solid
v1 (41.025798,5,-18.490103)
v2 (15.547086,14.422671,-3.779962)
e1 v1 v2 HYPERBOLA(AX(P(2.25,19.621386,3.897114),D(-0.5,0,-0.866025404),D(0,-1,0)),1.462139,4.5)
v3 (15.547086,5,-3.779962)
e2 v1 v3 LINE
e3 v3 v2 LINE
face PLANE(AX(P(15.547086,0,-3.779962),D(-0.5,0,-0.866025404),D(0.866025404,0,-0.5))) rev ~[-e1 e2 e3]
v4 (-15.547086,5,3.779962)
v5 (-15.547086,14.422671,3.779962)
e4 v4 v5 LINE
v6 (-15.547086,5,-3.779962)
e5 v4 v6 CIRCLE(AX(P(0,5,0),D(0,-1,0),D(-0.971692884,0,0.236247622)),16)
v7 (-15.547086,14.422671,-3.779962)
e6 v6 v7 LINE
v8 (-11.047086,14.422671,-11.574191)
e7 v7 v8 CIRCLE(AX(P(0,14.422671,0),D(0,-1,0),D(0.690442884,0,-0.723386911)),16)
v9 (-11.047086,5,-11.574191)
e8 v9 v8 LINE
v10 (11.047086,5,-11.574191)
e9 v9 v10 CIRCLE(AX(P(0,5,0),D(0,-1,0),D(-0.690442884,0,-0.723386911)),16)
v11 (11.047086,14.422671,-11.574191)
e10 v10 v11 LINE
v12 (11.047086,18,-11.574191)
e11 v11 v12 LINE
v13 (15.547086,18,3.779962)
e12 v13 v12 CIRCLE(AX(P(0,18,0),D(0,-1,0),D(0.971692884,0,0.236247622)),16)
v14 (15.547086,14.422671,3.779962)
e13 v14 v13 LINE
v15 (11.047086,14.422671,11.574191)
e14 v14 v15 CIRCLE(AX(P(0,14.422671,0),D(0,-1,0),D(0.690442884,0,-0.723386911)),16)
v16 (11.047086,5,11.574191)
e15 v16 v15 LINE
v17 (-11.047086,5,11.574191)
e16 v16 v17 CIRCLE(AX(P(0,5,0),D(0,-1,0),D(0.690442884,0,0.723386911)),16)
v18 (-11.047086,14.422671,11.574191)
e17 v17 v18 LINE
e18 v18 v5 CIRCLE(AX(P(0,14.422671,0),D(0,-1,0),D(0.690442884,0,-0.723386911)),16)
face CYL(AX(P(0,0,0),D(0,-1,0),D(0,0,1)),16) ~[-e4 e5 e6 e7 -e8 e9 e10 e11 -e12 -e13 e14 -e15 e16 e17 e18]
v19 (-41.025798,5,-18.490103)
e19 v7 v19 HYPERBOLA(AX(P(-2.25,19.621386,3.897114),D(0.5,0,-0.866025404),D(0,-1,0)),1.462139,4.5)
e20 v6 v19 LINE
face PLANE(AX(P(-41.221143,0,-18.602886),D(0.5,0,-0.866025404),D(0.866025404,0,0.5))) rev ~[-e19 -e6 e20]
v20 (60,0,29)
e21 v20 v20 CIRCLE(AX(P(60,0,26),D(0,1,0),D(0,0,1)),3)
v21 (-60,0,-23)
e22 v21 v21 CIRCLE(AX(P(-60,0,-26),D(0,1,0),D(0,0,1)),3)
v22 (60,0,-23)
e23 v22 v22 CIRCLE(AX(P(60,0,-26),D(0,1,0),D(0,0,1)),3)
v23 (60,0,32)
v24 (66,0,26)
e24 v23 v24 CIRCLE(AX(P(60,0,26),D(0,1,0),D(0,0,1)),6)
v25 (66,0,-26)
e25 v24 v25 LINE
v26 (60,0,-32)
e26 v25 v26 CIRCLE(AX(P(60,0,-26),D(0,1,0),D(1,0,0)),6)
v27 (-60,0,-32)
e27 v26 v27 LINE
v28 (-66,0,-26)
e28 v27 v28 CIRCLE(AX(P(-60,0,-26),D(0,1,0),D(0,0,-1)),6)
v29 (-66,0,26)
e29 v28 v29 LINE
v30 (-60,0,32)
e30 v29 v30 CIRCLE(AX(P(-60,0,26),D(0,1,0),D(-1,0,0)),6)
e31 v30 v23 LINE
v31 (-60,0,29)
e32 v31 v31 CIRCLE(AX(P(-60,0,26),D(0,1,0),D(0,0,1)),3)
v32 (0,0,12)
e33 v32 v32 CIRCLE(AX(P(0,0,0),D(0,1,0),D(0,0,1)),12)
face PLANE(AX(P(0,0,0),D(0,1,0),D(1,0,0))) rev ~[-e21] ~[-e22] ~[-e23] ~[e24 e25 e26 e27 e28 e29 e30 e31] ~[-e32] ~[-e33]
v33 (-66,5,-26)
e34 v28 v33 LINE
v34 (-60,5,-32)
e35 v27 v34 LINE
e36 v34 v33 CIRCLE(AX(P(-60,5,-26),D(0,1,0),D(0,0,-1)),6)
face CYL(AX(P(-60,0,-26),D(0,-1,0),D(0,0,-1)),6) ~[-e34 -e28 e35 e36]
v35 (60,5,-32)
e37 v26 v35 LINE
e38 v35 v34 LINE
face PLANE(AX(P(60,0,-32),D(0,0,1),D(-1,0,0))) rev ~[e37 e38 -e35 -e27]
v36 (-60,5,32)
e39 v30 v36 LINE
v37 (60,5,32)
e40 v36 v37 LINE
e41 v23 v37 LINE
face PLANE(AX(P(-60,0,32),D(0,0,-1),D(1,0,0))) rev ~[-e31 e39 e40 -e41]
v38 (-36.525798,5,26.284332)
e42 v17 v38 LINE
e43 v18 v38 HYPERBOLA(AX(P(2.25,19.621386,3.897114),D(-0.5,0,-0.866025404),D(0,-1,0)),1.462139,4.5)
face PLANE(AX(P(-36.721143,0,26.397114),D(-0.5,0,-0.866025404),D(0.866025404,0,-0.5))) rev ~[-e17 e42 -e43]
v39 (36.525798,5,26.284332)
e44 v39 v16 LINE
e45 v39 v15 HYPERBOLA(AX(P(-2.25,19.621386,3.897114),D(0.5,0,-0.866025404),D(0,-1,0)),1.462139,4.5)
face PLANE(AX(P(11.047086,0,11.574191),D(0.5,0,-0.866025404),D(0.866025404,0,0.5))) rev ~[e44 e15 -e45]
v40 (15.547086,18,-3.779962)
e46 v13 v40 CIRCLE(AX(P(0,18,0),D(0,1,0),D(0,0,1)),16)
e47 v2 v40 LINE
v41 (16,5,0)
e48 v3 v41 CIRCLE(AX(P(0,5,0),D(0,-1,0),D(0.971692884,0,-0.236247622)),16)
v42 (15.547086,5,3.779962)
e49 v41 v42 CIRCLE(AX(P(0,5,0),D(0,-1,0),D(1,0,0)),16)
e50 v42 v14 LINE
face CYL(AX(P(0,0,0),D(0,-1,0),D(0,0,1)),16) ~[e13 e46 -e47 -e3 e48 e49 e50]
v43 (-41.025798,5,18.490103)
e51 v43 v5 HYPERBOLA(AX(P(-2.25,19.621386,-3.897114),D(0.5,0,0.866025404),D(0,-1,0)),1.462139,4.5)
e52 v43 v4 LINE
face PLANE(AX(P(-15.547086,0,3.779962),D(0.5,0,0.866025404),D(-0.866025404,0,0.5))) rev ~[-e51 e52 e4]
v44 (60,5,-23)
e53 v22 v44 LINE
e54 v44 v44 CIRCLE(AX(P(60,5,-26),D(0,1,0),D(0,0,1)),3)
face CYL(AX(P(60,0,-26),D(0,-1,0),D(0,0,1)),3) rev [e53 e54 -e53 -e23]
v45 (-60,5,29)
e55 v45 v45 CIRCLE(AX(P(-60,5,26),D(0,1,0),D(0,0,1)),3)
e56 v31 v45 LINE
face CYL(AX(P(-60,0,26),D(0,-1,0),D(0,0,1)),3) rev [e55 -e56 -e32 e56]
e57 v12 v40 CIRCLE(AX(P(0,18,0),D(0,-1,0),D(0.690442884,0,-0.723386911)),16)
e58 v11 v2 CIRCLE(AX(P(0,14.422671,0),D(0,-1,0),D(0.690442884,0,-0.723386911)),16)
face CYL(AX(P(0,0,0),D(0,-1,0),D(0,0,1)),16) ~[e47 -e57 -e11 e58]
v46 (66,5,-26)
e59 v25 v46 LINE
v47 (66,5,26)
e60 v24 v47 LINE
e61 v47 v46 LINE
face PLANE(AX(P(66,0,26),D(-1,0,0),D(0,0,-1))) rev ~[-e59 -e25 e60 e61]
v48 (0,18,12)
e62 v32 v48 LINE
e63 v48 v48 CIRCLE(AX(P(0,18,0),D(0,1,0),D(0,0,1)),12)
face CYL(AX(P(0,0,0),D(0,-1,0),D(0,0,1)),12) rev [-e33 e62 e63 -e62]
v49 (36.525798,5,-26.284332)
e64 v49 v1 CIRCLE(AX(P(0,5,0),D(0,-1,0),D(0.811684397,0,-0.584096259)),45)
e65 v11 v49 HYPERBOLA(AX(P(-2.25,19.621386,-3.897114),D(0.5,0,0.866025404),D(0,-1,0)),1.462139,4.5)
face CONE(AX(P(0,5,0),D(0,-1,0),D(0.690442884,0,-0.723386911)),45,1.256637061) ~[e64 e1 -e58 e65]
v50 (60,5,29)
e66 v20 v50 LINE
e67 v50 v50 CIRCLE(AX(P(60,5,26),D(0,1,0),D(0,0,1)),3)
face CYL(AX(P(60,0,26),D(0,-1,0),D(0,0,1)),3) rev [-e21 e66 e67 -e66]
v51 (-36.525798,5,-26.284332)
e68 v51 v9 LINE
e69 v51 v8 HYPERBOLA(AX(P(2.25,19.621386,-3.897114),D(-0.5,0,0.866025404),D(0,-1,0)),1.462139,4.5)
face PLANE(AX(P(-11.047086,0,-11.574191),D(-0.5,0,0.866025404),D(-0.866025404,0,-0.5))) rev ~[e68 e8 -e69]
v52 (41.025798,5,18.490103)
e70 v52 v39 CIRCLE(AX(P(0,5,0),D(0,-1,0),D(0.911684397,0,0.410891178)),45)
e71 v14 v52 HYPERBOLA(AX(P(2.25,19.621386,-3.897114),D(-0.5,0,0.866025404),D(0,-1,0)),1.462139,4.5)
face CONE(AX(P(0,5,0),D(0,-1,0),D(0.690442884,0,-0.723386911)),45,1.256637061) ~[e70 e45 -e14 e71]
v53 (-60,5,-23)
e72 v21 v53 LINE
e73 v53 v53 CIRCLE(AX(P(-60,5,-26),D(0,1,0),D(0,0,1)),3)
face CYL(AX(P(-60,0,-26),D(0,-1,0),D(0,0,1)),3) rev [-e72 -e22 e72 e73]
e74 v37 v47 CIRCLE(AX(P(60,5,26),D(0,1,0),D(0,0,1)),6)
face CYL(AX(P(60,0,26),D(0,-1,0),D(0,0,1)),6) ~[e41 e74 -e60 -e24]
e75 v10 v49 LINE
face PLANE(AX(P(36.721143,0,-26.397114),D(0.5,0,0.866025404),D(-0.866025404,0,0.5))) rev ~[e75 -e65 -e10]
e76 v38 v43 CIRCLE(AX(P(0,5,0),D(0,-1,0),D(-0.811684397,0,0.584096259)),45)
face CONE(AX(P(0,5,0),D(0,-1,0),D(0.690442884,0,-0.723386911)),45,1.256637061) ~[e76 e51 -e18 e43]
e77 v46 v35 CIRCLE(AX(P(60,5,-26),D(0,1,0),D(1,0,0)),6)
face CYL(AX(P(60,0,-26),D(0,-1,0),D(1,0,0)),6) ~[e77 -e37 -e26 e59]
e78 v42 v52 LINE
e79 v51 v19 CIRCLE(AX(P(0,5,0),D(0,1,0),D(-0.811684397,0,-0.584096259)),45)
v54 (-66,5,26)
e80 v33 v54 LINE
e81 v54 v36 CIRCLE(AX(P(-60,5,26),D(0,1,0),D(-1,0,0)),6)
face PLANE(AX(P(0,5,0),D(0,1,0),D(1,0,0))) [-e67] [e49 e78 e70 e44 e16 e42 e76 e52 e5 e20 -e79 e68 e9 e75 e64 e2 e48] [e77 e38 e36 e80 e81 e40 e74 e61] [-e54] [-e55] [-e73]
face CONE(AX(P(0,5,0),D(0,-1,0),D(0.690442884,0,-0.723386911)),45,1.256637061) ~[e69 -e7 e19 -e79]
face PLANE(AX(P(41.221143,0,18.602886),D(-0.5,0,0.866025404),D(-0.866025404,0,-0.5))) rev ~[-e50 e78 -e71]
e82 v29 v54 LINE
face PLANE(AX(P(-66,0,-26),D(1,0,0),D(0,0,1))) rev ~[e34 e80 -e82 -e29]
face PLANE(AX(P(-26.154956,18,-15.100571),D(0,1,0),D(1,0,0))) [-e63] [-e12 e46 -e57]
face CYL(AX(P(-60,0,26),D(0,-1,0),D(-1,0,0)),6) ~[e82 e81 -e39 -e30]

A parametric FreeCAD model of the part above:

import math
import FreeCAD as App
import Part
import Sketcher
Q = App.Units.Quantity

doc = App.newDocument("Part")
body = doc.addObject("PartDesign::Body", "Body")

# Sketch on XZ plane
sketch1 = body.newObject("Sketcher::SketchObject", "Sketch")
sketch1.AttachmentSupport = (doc.getObject("XZ_Plane"), [""])
sketch1.MapMode = "FlatFace"
sketch1.addGeometry([
    Part.Circle(App.Vector(0, 0, 0), App.Vector(0, 0, 1), 16),
    Part.Circle(App.Vector(0, 0, 0), App.Vector(0, 0, 1), 12),
], False)
sketch1.addConstraint([
    Sketcher.Constraint("Coincident", 0, 3, -1, 1),
    Sketcher.Constraint("Coincident", 1, 3, -1, 1),
    Sketcher.Constraint("Diameter", 0, Q("32 mm")),
    Sketcher.Constraint("Diameter", 1, Q("24 mm")),
])
pad1 = body.newObject("PartDesign::Pad", "Pad")
pad1.Profile = sketch1
pad1.Length = 18
pad1.Reversed = True

# Sketch on XZ plane
sketch2 = body.newObject("Sketcher::SketchObject", "Sketch001")
sketch2.AttachmentSupport = (doc.getObject("XZ_Plane"), [""])
sketch2.MapMode = "FlatFace"
sketch2.addGeometry([
    Part.ArcOfCircle(Part.Circle(App.Vector(-60, -26, 0), App.Vector(0, 0, 1), 6), math.radians(180), math.radians(270)),  # 0
    Part.LineSegment(App.Vector(-66, -26, 0), App.Vector(-66, 26, 0)),  # 1
    Part.ArcOfCircle(Part.Circle(App.Vector(-60, 26, 0), App.Vector(0, 0, 1), 6), math.radians(90), math.radians(180)),  # 2
    Part.LineSegment(App.Vector(-60, 32, 0), App.Vector(60, 32, 0)),  # 3
    Part.ArcOfCircle(Part.Circle(App.Vector(60, 26, 0), App.Vector(0, 0, 1), 6), math.radians(0), math.radians(90)),  # 4
    Part.LineSegment(App.Vector(66, 26, 0), App.Vector(66, -26, 0)),  # 5
    Part.ArcOfCircle(Part.Circle(App.Vector(60, -26, 0), App.Vector(0, 0, 1), 6), math.radians(-90), math.radians(0)),  # 6
    Part.LineSegment(App.Vector(60, -32, 0), App.Vector(-60, -32, 0)),  # 7
    Part.Circle(App.Vector(-60, 26, 0), App.Vector(0, 0, 1), 3),  # 8
    Part.Circle(App.Vector(60, 26, 0), App.Vector(0, 0, 1), 3),  # 9
    Part.Circle(App.Vector(-60, -26, 0), App.Vector(0, 0, 1), 3),  # 10
    Part.LineSegment(App.Vector(36.7, 26.4, 0), App.Vector(11, 11.6, 0)),  # 11
    Part.ArcOfCircle(Part.Circle(App.Vector(0, 0, 0), App.Vector(0, 0, 1), 16), math.radians(46), math.radians(134)),  # 12
    Part.LineSegment(App.Vector(-11, 11.6, 0), App.Vector(-36.7, 26.4, 0)),  # 13
    Part.LineSegment(App.Vector(-36.7, 26.4, 0), App.Vector(-41.2, 18.6, 0)),  # 14
    Part.LineSegment(App.Vector(-41.2, 18.6, 0), App.Vector(-15.5, 3.8, 0)),  # 15
    Part.ArcOfCircle(Part.Circle(App.Vector(0, 0, 0), App.Vector(0, 0, 1), 16), math.radians(166), math.radians(194)),  # 16
    Part.LineSegment(App.Vector(-15.5, -3.8, 0), App.Vector(-41.2, -18.6, 0)),  # 17
    Part.LineSegment(App.Vector(-41.2, -18.6, 0), App.Vector(-36.7, -26.4, 0)),  # 18
    Part.LineSegment(App.Vector(-36.7, -26.4, 0), App.Vector(-11, -11.6, 0)),  # 19
    Part.ArcOfCircle(Part.Circle(App.Vector(0, 0, 0), App.Vector(0, 0, 1), 16), math.radians(-134), math.radians(-46)),  # 20
    Part.LineSegment(App.Vector(11, -11.6, 0), App.Vector(36.7, -26.4, 0)),  # 21
    Part.LineSegment(App.Vector(36.7, -26.4, 0), App.Vector(41.2, -18.6, 0)),  # 22
    Part.LineSegment(App.Vector(41.2, -18.6, 0), App.Vector(15.5, -3.8, 0)),  # 23
    Part.ArcOfCircle(Part.Circle(App.Vector(0, 0, 0), App.Vector(0, 0, 1), 16), math.radians(-13.67), math.radians(0)),  # 24
    Part.ArcOfCircle(Part.Circle(App.Vector(0, 0, 0), App.Vector(0, 0, 1), 16), math.radians(0), math.radians(13.67)),  # 25
    Part.LineSegment(App.Vector(15.5, 3.8, 0), App.Vector(41.2, 18.6, 0)),  # 26
    Part.LineSegment(App.Vector(41.2, 18.6, 0), App.Vector(36.7, 26.4, 0)),  # 27
    Part.Circle(App.Vector(60, -26, 0), App.Vector(0, 0, 1), 3),  # 28
], False)
sketch2.addConstraint([
    Sketcher.Constraint("Tangent", 0, 1, 1, 1),
    Sketcher.Constraint("Tangent", 1, 2, 2, 2),
    Sketcher.Constraint("Tangent", 2, 1, 3, 1),
    Sketcher.Constraint("Tangent", 3, 2, 4, 2),
    Sketcher.Constraint("Tangent", 4, 1, 5, 1),
    Sketcher.Constraint("Tangent", 5, 2, 6, 2),
    Sketcher.Constraint("Tangent", 6, 1, 7, 1),
    Sketcher.Constraint("Tangent", 7, 2, 0, 2),
    Sketcher.Constraint("Coincident", 11, 2, 12, 1),
    Sketcher.Constraint("Coincident", 12, 2, 13, 1),
    Sketcher.Constraint("Coincident", 13, 2, 14, 1),
    Sketcher.Constraint("Coincident", 14, 2, 15, 1),
    Sketcher.Constraint("Coincident", 15, 2, 16, 1),
    Sketcher.Constraint("Coincident", 16, 2, 17, 1),
    Sketcher.Constraint("Coincident", 17, 2, 18, 1),
    Sketcher.Constraint("Coincident", 18, 2, 19, 1),
    Sketcher.Constraint("Coincident", 19, 2, 20, 1),
    Sketcher.Constraint("Coincident", 20, 2, 21, 1),
    Sketcher.Constraint("Coincident", 21, 2, 22, 1),
    Sketcher.Constraint("Coincident", 22, 2, 23, 1),
    Sketcher.Constraint("Coincident", 23, 2, 24, 1),
    Sketcher.Constraint("Tangent", 24, 2, 25, 1),
    Sketcher.Constraint("Coincident", 25, 2, 26, 1),
    Sketcher.Constraint("Coincident", 26, 2, 27, 1),
    Sketcher.Constraint("Coincident", 27, 2, 11, 1),
    Sketcher.Constraint("Vertical", 1),
    Sketcher.Constraint("Horizontal", 3),
    Sketcher.Constraint("Vertical", 5),
    Sketcher.Constraint("Horizontal", 7),
    Sketcher.Constraint("Coincident", 12, 3, -1, 1),
    Sketcher.Constraint("Coincident", 16, 3, -1, 1),
    Sketcher.Constraint("Coincident", 20, 3, -1, 1),
    Sketcher.Constraint("Coincident", 24, 3, -1, 1),
    Sketcher.Constraint("Coincident", 8, 3, 2, 3),
    Sketcher.Constraint("Coincident", 9, 3, 4, 3),
    Sketcher.Constraint("Coincident", 10, 3, 0, 3),
    Sketcher.Constraint("Coincident", 28, 3, 6, 3),
    Sketcher.Constraint("Equal", 0, 2),
    Sketcher.Constraint("Equal", 2, 4),
    Sketcher.Constraint("Equal", 4, 6),
    Sketcher.Constraint("Equal", 8, 9),
    Sketcher.Constraint("Equal", 9, 10),
    Sketcher.Constraint("Equal", 12, 16),
    Sketcher.Constraint("Equal", 16, 20),
    Sketcher.Constraint("Equal", 20, 24),
    Sketcher.Constraint("Equal", 24, 25),
    Sketcher.Constraint("Equal", 10, 28),
    Sketcher.Constraint("Symmetric", 0, 3, 4, 3, -1, 1),
    Sketcher.Constraint("Symmetric", 13, 2, 21, 2, -1, 1),
    Sketcher.Constraint("Symmetric", 14, 2, 22, 2, -1, 1),
    Sketcher.Constraint("Symmetric", 17, 2, 26, 2, -1, 1),
    Sketcher.Constraint("Symmetric", 18, 2, 27, 2, -1, 1),
    Sketcher.Constraint("Symmetric", 18, 2, 21, 2, -2),
    Sketcher.Constraint("Symmetric", 17, 2, 22, 2, -2),
    Sketcher.Constraint("PointOnObject", 24, 2, -1),
    Sketcher.Constraint("Perpendicular", 13, 14),
    Sketcher.Constraint("Perpendicular", 14, 15),
    Sketcher.Constraint("Parallel", 11, 17),
    Sketcher.Constraint("Perpendicular", 17, 18),
    Sketcher.Constraint("Perpendicular", 18, 19),
    Sketcher.Constraint("Parallel", 15, 21),
    Sketcher.Constraint("Perpendicular", 22, 23),
    Sketcher.Constraint("Parallel", 19, 26),
    Sketcher.Constraint("Equal", 13, 15),
    Sketcher.Constraint("Diameter", 8, Q("6 mm")),
    Sketcher.Constraint("Radius", 0, Q("6 mm")),
    Sketcher.Constraint("Radius", 12, Q("16 mm")),
    Sketcher.Constraint("DistanceX", 3, 1, 3, 2, Q("120 mm")),
    Sketcher.Constraint("DistanceY", 1, 1, 1, 2, Q("52 mm")),
    Sketcher.Constraint("Angle", 11, Q("-150 deg")),
    Sketcher.Constraint("Distance", 14, Q("9 mm")),
    Sketcher.Constraint("Distance", 11, Q("29.645847 mm")),
])
pad2 = body.newObject("PartDesign::Pad", "Pad001")
pad2.Profile = sketch2
pad2.Length = 5
pad2.Reversed = True

# Sketch on XZ plane
sketch3 = body.newObject("Sketcher::SketchObject", "Sketch002")
sketch3.AttachmentSupport = (doc.getObject("XZ_Plane"), [""])
sketch3.MapMode = "FlatFace"
sketch3.addGeometry([
    Part.LineSegment(App.Vector(-41, -19, 0), App.Vector(-16, -4, 0)),  # 0
    Part.ArcOfCircle(Part.Circle(App.Vector(0, 0, 0), App.Vector(0, 0, 1), 16), math.radians(-166), math.radians(-134)),  # 1
    Part.LineSegment(App.Vector(-11, -12, 0), App.Vector(-37, -26, 0)),  # 2
    Part.LineSegment(App.Vector(-37, -26, 0), App.Vector(-41, -19, 0)),  # 3
    Part.LineSegment(App.Vector(37, -26, 0), App.Vector(11, -12, 0)),  # 4
    Part.ArcOfCircle(Part.Circle(App.Vector(0, 0, 0), App.Vector(0, 0, 1), 16), math.radians(-46), math.radians(-14)),  # 5
    Part.LineSegment(App.Vector(16, -4, 0), App.Vector(41, -19, 0)),  # 6
    Part.LineSegment(App.Vector(41, -19, 0), App.Vector(37, -26, 0)),  # 7
    Part.ArcOfCircle(Part.Circle(App.Vector(0, 0, 0), App.Vector(0, 0, 1), 16), math.radians(14), math.radians(46)),  # 8
    Part.LineSegment(App.Vector(11, 12, 0), App.Vector(37, 26, 0)),  # 9
    Part.LineSegment(App.Vector(37, 26, 0), App.Vector(41, 19, 0)),  # 10
    Part.LineSegment(App.Vector(41, 19, 0), App.Vector(16, 4, 0)),  # 11
    Part.LineSegment(App.Vector(-37, 26, 0), App.Vector(-11, 12, 0)),  # 12
    Part.ArcOfCircle(Part.Circle(App.Vector(0, 0, 0), App.Vector(0, 0, 1), 16), math.radians(134), math.radians(166)),  # 13
    Part.LineSegment(App.Vector(-16, 4, 0), App.Vector(-41, 19, 0)),  # 14
    Part.LineSegment(App.Vector(-41, 19, 0), App.Vector(-37, 26, 0)),  # 15
], False)
sketch3.addConstraint([
    Sketcher.Constraint("Coincident", 0, 2, 1, 1),
    Sketcher.Constraint("Coincident", 1, 2, 2, 1),
    Sketcher.Constraint("Coincident", 2, 2, 3, 1),
    Sketcher.Constraint("Coincident", 3, 2, 0, 1),
    Sketcher.Constraint("Coincident", 4, 2, 5, 1),
    Sketcher.Constraint("Coincident", 5, 2, 6, 1),
    Sketcher.Constraint("Coincident", 6, 2, 7, 1),
    Sketcher.Constraint("Coincident", 7, 2, 4, 1),
    Sketcher.Constraint("Coincident", 8, 2, 9, 1),
    Sketcher.Constraint("Coincident", 9, 2, 10, 1),
    Sketcher.Constraint("Coincident", 10, 2, 11, 1),
    Sketcher.Constraint("Coincident", 11, 2, 8, 1),
    Sketcher.Constraint("Coincident", 12, 2, 13, 1),
    Sketcher.Constraint("Coincident", 13, 2, 14, 1),
    Sketcher.Constraint("Coincident", 14, 2, 15, 1),
    Sketcher.Constraint("Coincident", 15, 2, 12, 1),
    Sketcher.Constraint("Coincident", 1, 3, -1, 1),
    Sketcher.Constraint("Coincident", 5, 3, -1, 1),
    Sketcher.Constraint("Coincident", 8, 3, -1, 1),
    Sketcher.Constraint("Coincident", 13, 3, -1, 1),
    Sketcher.Constraint("Equal", 1, 5),
    Sketcher.Constraint("Equal", 5, 8),
    Sketcher.Constraint("Equal", 8, 13),
    Sketcher.Constraint("Symmetric", 2, 2, 9, 2, -1, 1),
    Sketcher.Constraint("Symmetric", 3, 2, 10, 2, -1, 1),
    Sketcher.Constraint("Symmetric", 6, 2, 14, 2, -1, 1),
    Sketcher.Constraint("Symmetric", 7, 2, 15, 2, -1, 1),
    Sketcher.Constraint("Symmetric", 3, 2, 6, 2, -2),
    Sketcher.Constraint("Symmetric", 2, 2, 7, 2, -2),
    Sketcher.Constraint("Parallel", 0, 2),
    Sketcher.Constraint("Perpendicular", 2, 3),
    Sketcher.Constraint("Parallel", 4, 6),
    Sketcher.Constraint("Perpendicular", 6, 7),
    Sketcher.Constraint("Perpendicular", 3, 9),
    Sketcher.Constraint("Perpendicular", 10, 11),
    Sketcher.Constraint("Perpendicular", 7, 12),
    Sketcher.Constraint("Parallel", 12, 14),
    Sketcher.Constraint("Equal", 0, 2),
    Sketcher.Constraint("Radius", 1, Q("16 mm")),
    Sketcher.Constraint("Angle", 0, Q("30 deg")),
    Sketcher.Constraint("Distance", 3, Q("9 mm")),
    Sketcher.Constraint("DistanceY", 6, 2, 9, 2, Q("45 mm")),
])
pad3 = body.newObject("PartDesign::Pad", "Pad002")
pad3.Profile = sketch3
pad3.Length = 18
pad3.Reversed = True

# Sketch on YZ plane
sketch4 = body.newObject("Sketcher::SketchObject", "Sketch003")
sketch4.AttachmentSupport = (doc.getObject("YZ_Plane"), [""])
sketch4.MapMode = "FlatFace"
sketch4.addGeometry([
    Part.LineSegment(App.Vector(18, 47.5, 0), App.Vector(18, 16, 0)),  # 0
    Part.LineSegment(App.Vector(18, 16, 0), App.Vector(14.4, 16, 0)),  # 1
    Part.LineSegment(App.Vector(14.4, 16, 0), App.Vector(5, 45, 0)),  # 2
    Part.LineSegment(App.Vector(5, 45, 0), App.Vector(5, 47.5, 0)),  # 3
    Part.LineSegment(App.Vector(5, 47.5, 0), App.Vector(18, 47.5, 0)),  # 4
], False)
sketch4.addConstraint([
    Sketcher.Constraint("Coincident", 0, 2, 1, 1),
    Sketcher.Constraint("Coincident", 1, 2, 2, 1),
    Sketcher.Constraint("Coincident", 2, 2, 3, 1),
    Sketcher.Constraint("Coincident", 3, 2, 4, 1),
    Sketcher.Constraint("Coincident", 4, 2, 0, 1),
    Sketcher.Constraint("Vertical", 0),
    Sketcher.Constraint("Horizontal", 1),
    Sketcher.Constraint("Vertical", 3),
    Sketcher.Constraint("Horizontal", 4),
    Sketcher.Constraint("DistanceX", 4, 1, 4, 2, Q("13 mm")),
    Sketcher.Constraint("Angle", 2, Q("108 deg")),
    Sketcher.Constraint("DistanceX", -1, 1, 0, 2, Q("18 mm")),
    Sketcher.Constraint("DistanceY", -1, 1, 0, 2, Q("16 mm")),
    Sketcher.Constraint("DistanceY", -1, 1, 2, 2, Q("45 mm")),
    Sketcher.Constraint("DistanceY", 0, 2, 0, 1, Q("31.498754 mm")),
])
groove = body.newObject("PartDesign::Groove", "Groove")
groove.Profile = sketch4
groove.ReferenceAxis = (sketch4, ["H_Axis"])
groove.Angle = 360

doc.recompute()
